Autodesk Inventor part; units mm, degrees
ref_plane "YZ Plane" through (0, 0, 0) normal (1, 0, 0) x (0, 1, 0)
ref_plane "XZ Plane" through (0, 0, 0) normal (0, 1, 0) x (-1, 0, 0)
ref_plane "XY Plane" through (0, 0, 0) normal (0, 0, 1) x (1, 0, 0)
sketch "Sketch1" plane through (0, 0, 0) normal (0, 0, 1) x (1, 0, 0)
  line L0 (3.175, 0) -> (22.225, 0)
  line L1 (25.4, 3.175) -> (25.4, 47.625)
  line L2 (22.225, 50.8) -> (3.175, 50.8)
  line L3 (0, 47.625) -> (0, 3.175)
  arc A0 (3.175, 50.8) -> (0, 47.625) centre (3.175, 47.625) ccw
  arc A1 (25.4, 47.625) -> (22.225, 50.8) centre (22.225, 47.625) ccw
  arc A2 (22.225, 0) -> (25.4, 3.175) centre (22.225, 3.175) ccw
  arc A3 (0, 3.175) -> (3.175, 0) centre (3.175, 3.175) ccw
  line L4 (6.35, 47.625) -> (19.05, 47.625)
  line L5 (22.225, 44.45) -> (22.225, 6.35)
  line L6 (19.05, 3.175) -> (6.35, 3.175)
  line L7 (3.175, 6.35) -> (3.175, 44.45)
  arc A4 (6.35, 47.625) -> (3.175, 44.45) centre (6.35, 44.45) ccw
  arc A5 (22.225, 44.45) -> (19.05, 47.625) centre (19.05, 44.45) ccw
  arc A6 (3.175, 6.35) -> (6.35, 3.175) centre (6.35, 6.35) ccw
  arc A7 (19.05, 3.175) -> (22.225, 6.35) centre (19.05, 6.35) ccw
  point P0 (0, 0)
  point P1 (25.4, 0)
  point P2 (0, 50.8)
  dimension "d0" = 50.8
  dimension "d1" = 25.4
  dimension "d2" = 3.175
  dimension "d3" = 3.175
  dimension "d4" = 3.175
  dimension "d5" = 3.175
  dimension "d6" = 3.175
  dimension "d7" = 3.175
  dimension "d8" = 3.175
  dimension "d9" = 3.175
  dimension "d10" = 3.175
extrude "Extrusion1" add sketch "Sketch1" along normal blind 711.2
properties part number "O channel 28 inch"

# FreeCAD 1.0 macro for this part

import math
import FreeCAD as App
import Part
import Sketcher

V = App.Vector
Q = App.Units.Quantity

doc = App.newDocument("Part")
body = doc.addObject("PartDesign::Body", "Body")

# Sketch on XY plane
sketch1 = body.newObject("Sketcher::SketchObject", "Sketch")
sketch1.AttachmentSupport = (doc.getObject("XY_Plane"), [""])
sketch1.MapMode = "FlatFace"
sketch1.addGeometry([
    Part.ArcOfCircle(Part.Circle(V(3.2, 3.2, 0), V(0, 0, 1), 3.2), math.radians(180), math.radians(270)),  # 0
    Part.LineSegment(V(3.2, 0, 0), V(22.2, 0, 0)),  # 1
    Part.ArcOfCircle(Part.Circle(V(22.2, 3.2, 0), V(0, 0, 1), 3.2), math.radians(-90), math.radians(0)),  # 2
    Part.LineSegment(V(25.4, 3.2, 0), V(25.4, 47.6, 0)),  # 3
    Part.ArcOfCircle(Part.Circle(V(22.2, 47.6, 0), V(0, 0, 1), 3.2), math.radians(0), math.radians(90)),  # 4
    Part.LineSegment(V(22.2, 50.8, 0), V(3.2, 50.8, 0)),  # 5
    Part.ArcOfCircle(Part.Circle(V(3.2, 47.6, 0), V(0, 0, 1), 3.2), math.radians(90), math.radians(180)),  # 6
    Part.LineSegment(V(0, 47.6, 0), V(0, 3.2, 0)),  # 7
    Part.ArcOfCircle(Part.Circle(V(6.3, 44.5, 0), V(0, 0, 1), 3.2), math.radians(90), math.radians(180)),  # 8
    Part.LineSegment(V(6.3, 47.6, 0), V(19.1, 47.6, 0)),  # 9
    Part.ArcOfCircle(Part.Circle(V(19.1, 44.5, 0), V(0, 0, 1), 3.2), math.radians(0), math.radians(90)),  # 10
    Part.LineSegment(V(22.2, 44.5, 0), V(22.2, 6.3, 0)),  # 11
    Part.ArcOfCircle(Part.Circle(V(19.1, 6.3, 0), V(0, 0, 1), 3.2), math.radians(-90), math.radians(0)),  # 12
    Part.LineSegment(V(19.1, 3.2, 0), V(6.3, 3.2, 0)),  # 13
    Part.ArcOfCircle(Part.Circle(V(6.3, 6.3, 0), V(0, 0, 1), 3.2), math.radians(180), math.radians(270)),  # 14
    Part.LineSegment(V(3.2, 6.3, 0), V(3.2, 44.5, 0)),  # 15
], False)
sketch1.addConstraint([
    Sketcher.Constraint("Tangent", 0, 2, 1, 1),
    Sketcher.Constraint("Tangent", 1, 2, 2, 1),
    Sketcher.Constraint("Tangent", 2, 2, 3, 1),
    Sketcher.Constraint("Tangent", 3, 2, 4, 1),
    Sketcher.Constraint("Tangent", 4, 2, 5, 1),
    Sketcher.Constraint("Tangent", 5, 2, 6, 1),
    Sketcher.Constraint("Tangent", 6, 2, 7, 1),
    Sketcher.Constraint("Tangent", 7, 2, 0, 1),
    Sketcher.Constraint("Tangent", 8, 1, 9, 1),
    Sketcher.Constraint("Tangent", 9, 2, 10, 2),
    Sketcher.Constraint("Tangent", 10, 1, 11, 1),
    Sketcher.Constraint("Tangent", 11, 2, 12, 2),
    Sketcher.Constraint("Tangent", 12, 1, 13, 1),
    Sketcher.Constraint("Tangent", 13, 2, 14, 2),
    Sketcher.Constraint("Tangent", 14, 1, 15, 1),
    Sketcher.Constraint("Tangent", 15, 2, 8, 2),
    Sketcher.Constraint("Horizontal", 1),
    Sketcher.Constraint("Vertical", 3),
    Sketcher.Constraint("Horizontal", 5),
    Sketcher.Constraint("Vertical", 7),
    Sketcher.Constraint("Horizontal", 9),
    Sketcher.Constraint("Vertical", 11),
    Sketcher.Constraint("Horizontal", 13),
    Sketcher.Constraint("Vertical", 15),
    Sketcher.Constraint("Equal", 0, 2),
    Sketcher.Constraint("Equal", 2, 4),
    Sketcher.Constraint("Equal", 4, 6),
    Sketcher.Constraint("Equal", 6, 8),
    Sketcher.Constraint("Equal", 8, 10),
    Sketcher.Constraint("Equal", 10, 12),
    Sketcher.Constraint("Equal", 12, 14),
    Sketcher.Constraint("PointOnObject", 0, 2, -1),
    Sketcher.Constraint("PointOnObject", 6, 2, -2),
    Sketcher.Constraint("Horizontal", 6, 2, 8, 1),
    Sketcher.Constraint("Horizontal", 7, 2, 12, 1),
    Sketcher.Constraint("Vertical", 4, 2, 10, 1),
    Sketcher.Constraint("Vertical", 5, 2, 14, 1),
    Sketcher.Constraint("DistanceX", -1, 1, 2, 2, Q("1 in")),
    Sketcher.Constraint("DistanceY", -1, 1, 4, 2, Q("2 in")),
    Sketcher.Constraint("Radius", 0, Q("0.125 in")),
])
pad1 = body.newObject("PartDesign::Pad", "Pad")
pad1.Profile = sketch1
pad1.Length = Q("28 in")

doc.recompute()
